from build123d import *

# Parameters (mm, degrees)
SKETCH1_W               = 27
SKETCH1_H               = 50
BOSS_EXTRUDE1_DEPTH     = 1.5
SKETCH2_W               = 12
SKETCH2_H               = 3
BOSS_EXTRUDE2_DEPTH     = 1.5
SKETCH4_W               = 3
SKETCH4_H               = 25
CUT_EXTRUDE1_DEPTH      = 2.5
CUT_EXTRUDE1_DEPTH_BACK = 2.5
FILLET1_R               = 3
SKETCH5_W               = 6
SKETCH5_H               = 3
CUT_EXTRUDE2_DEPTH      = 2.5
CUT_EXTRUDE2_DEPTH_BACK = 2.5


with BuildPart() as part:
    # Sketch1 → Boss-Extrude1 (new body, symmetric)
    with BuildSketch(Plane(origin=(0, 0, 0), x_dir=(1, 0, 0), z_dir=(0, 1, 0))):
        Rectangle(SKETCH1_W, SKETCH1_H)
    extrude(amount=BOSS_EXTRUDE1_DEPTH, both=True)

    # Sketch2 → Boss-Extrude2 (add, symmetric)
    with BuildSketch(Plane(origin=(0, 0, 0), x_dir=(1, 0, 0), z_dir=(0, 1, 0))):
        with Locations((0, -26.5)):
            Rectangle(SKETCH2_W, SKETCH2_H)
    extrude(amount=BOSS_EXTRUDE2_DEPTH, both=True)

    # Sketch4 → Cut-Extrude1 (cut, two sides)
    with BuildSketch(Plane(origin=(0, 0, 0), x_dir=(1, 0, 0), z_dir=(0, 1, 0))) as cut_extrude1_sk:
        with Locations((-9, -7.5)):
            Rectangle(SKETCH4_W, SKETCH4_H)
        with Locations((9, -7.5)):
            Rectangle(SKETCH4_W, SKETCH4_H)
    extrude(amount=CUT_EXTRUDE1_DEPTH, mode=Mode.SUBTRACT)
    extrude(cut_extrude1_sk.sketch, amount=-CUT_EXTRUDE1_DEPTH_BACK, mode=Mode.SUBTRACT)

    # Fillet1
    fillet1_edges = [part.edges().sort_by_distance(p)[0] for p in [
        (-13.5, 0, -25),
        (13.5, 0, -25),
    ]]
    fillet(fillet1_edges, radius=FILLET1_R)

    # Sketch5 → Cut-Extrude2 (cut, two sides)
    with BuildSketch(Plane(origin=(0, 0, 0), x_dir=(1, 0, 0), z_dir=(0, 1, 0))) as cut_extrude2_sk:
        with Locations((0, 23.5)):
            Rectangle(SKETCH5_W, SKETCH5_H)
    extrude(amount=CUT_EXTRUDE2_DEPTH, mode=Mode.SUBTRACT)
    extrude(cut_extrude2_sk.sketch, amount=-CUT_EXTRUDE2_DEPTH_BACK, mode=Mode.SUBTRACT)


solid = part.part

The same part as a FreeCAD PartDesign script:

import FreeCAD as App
import Part
import Sketcher

V = App.Vector


def edges_at(feature, points):
    """Names of the edges that pass closest to the given points."""
    edges = feature.Shape.Edges
    near = lambda p: min(range(len(edges)), key=lambda i: edges[i].distToShape(Part.Vertex(*p))[0])
    return sorted({f"Edge{near(p) + 1}" for p in points})

doc = App.newDocument("Part")
body = doc.addObject("PartDesign::Body", "Body")

# Sketch on XZ plane
sketch1 = body.newObject("Sketcher::SketchObject", "Sketch")
sketch1.AttachmentSupport = (doc.getObject("XZ_Plane"), [""])
sketch1.MapMode = "FlatFace"
sketch1.addGeometry([
    Part.LineSegment(V(-14, -25, 0), V(-14, 25, 0)),
    Part.LineSegment(V(-14, 25, 0), V(14, 25, 0)),
    Part.LineSegment(V(14, 25, 0), V(14, -25, 0)),
    Part.LineSegment(V(14, -25, 0), V(-14, -25, 0)),
], False)
sketch1.addConstraint([
    Sketcher.Constraint("Coincident", 0, 2, 1, 1),
    Sketcher.Constraint("Coincident", 1, 2, 2, 1),
    Sketcher.Constraint("Coincident", 2, 2, 3, 1),
    Sketcher.Constraint("Coincident", 3, 2, 0, 1),
    Sketcher.Constraint("Vertical", 0),
    Sketcher.Constraint("Horizontal", 1),
    Sketcher.Constraint("Vertical", 2),
    Sketcher.Constraint("Horizontal", 3),
    Sketcher.Constraint("Symmetric", 0, 2, 2, 2, -1, 1),
    Sketcher.Constraint("DistanceX", 1, 1, 1, 2, 27.0),
    Sketcher.Constraint("DistanceY", 0, 1, 0, 2, 50.0),
])
pad1 = body.newObject("PartDesign::Pad", "Pad")
pad1.Profile = sketch1
pad1.Length = 3
pad1.Midplane = True

# Sketch on XZ plane
sketch2 = body.newObject("Sketcher::SketchObject", "Sketch001")
sketch2.AttachmentSupport = (doc.getObject("XZ_Plane"), [""])
sketch2.MapMode = "FlatFace"
sketch2.addGeometry([
    Part.LineSegment(V(-6, 25, 0), V(-6, 28, 0)),
    Part.LineSegment(V(-6, 28, 0), V(6, 28, 0)),
    Part.LineSegment(V(6, 28, 0), V(6, 25, 0)),
    Part.LineSegment(V(6, 25, 0), V(-6, 25, 0)),
], False)
sketch2.addConstraint([
    Sketcher.Constraint("Coincident", 0, 2, 1, 1),
    Sketcher.Constraint("Coincident", 1, 2, 2, 1),
    Sketcher.Constraint("Coincident", 2, 2, 3, 1),
    Sketcher.Constraint("Coincident", 3, 2, 0, 1),
    Sketcher.Constraint("Vertical", 0),
    Sketcher.Constraint("Horizontal", 1),
    Sketcher.Constraint("Vertical", 2),
    Sketcher.Constraint("Horizontal", 3),
    Sketcher.Constraint("DistanceX", 1, 1, 1, 2, 12.0),
    Sketcher.Constraint("DistanceY", 0, 1, 0, 2, 3.0),
    Sketcher.Constraint("DistanceX", 0, 2, -1, 1, 6.0),
    Sketcher.Constraint("DistanceY", -1, 1, 0, 2, 28.0),
])
pad2 = body.newObject("PartDesign::Pad", "Pad001")
pad2.Profile = sketch2
pad2.Length = 3
pad2.Midplane = True

# Sketch on XZ plane
sketch3 = body.newObject("Sketcher::SketchObject", "Sketch002")
sketch3.AttachmentSupport = (doc.getObject("XZ_Plane"), [""])
sketch3.MapMode = "FlatFace"
sketch3.addGeometry([
    Part.LineSegment(V(-10.5, -5, 0), V(-10.5, 20, 0)),  # 0
    Part.LineSegment(V(-10.5, 20, 0), V(-7.5, 20, 0)),  # 1
    Part.LineSegment(V(-7.5, 20, 0), V(-7.5, -5, 0)),  # 2
    Part.LineSegment(V(-7.5, -5, 0), V(-10.5, -5, 0)),  # 3
    Part.LineSegment(V(7.5, -5, 0), V(7.5, 20, 0)),  # 4
    Part.LineSegment(V(7.5, 20, 0), V(10.5, 20, 0)),  # 5
    Part.LineSegment(V(10.5, 20, 0), V(10.5, -5, 0)),  # 6
    Part.LineSegment(V(10.5, -5, 0), V(7.5, -5, 0)),  # 7
], False)
sketch3.addConstraint([
    Sketcher.Constraint("Coincident", 0, 2, 1, 1),
    Sketcher.Constraint("Coincident", 1, 2, 2, 1),
    Sketcher.Constraint("Coincident", 2, 2, 3, 1),
    Sketcher.Constraint("Coincident", 3, 2, 0, 1),
    Sketcher.Constraint("Coincident", 4, 2, 5, 1),
    Sketcher.Constraint("Coincident", 5, 2, 6, 1),
    Sketcher.Constraint("Coincident", 6, 2, 7, 1),
    Sketcher.Constraint("Coincident", 7, 2, 4, 1),
    Sketcher.Constraint("Vertical", 0),
    Sketcher.Constraint("Horizontal", 1),
    Sketcher.Constraint("Vertical", 2),
    Sketcher.Constraint("Horizontal", 3),
    Sketcher.Constraint("Vertical", 4),
    Sketcher.Constraint("Horizontal", 5),
    Sketcher.Constraint("Vertical", 6),
    Sketcher.Constraint("Horizontal", 7),
    Sketcher.Constraint("Symmetric", 1, 2, 4, 2, -2),
    Sketcher.Constraint("Symmetric", 3, 2, 6, 2, -2),
    Sketcher.Constraint("DistanceX", 1, 1, 1, 2, 3.0),
    Sketcher.Constraint("DistanceY", 0, 1, 0, 2, 25.0),
    Sketcher.Constraint("DistanceY", -1, 1, 0, 2, 20.0),
    Sketcher.Constraint("DistanceX", 1, 2, 4, 2, 15.0),
])
pocket1 = body.newObject("PartDesign::Pocket", "Pocket")
pocket1.Profile = sketch3
pocket1.Type = "ThroughAll"
pocket1.Midplane = True
doc.recompute()

fillet = body.newObject("PartDesign::Fillet", "Fillet")
fillet.Base = (pocket1, edges_at(pocket1, [(-13.5, 0, -25), (13.5, 0, -25)]))
fillet.Radius = 3

# Sketch on XZ plane
sketch4 = body.newObject("Sketcher::SketchObject", "Sketch003")
sketch4.AttachmentSupport = (doc.getObject("XZ_Plane"), [""])
sketch4.MapMode = "FlatFace"
sketch4.addGeometry([
    Part.LineSegment(V(-3, -25, 0), V(-3, -22, 0)),
    Part.LineSegment(V(-3, -22, 0), V(3, -22, 0)),
    Part.LineSegment(V(3, -22, 0), V(3, -25, 0)),
    Part.LineSegment(V(3, -25, 0), V(-3, -25, 0)),
], False)
sketch4.addConstraint([
    Sketcher.Constraint("Coincident", 0, 2, 1, 1),
    Sketcher.Constraint("Coincident", 1, 2, 2, 1),
    Sketcher.Constraint("Coincident", 2, 2, 3, 1),
    Sketcher.Constraint("Coincident", 3, 2, 0, 1),
    Sketcher.Constraint("Vertical", 0),
    Sketcher.Constraint("Horizontal", 1),
    Sketcher.Constraint("Vertical", 2),
    Sketcher.Constraint("Horizontal", 3),
    Sketcher.Constraint("DistanceX", 1, 1, 1, 2, 6.0),
    Sketcher.Constraint("DistanceY", 0, 1, 0, 2, 3.0),
    Sketcher.Constraint("DistanceX", 0, 2, -1, 1, 3.0),
    Sketcher.Constraint("DistanceY", 0, 2, -1, 1, 22.0),
])
pocket2 = body.newObject("PartDesign::Pocket", "Pocket001")
pocket2.Profile = sketch4
pocket2.Type = "ThroughAll"
pocket2.Midplane = True

doc.recompute()
